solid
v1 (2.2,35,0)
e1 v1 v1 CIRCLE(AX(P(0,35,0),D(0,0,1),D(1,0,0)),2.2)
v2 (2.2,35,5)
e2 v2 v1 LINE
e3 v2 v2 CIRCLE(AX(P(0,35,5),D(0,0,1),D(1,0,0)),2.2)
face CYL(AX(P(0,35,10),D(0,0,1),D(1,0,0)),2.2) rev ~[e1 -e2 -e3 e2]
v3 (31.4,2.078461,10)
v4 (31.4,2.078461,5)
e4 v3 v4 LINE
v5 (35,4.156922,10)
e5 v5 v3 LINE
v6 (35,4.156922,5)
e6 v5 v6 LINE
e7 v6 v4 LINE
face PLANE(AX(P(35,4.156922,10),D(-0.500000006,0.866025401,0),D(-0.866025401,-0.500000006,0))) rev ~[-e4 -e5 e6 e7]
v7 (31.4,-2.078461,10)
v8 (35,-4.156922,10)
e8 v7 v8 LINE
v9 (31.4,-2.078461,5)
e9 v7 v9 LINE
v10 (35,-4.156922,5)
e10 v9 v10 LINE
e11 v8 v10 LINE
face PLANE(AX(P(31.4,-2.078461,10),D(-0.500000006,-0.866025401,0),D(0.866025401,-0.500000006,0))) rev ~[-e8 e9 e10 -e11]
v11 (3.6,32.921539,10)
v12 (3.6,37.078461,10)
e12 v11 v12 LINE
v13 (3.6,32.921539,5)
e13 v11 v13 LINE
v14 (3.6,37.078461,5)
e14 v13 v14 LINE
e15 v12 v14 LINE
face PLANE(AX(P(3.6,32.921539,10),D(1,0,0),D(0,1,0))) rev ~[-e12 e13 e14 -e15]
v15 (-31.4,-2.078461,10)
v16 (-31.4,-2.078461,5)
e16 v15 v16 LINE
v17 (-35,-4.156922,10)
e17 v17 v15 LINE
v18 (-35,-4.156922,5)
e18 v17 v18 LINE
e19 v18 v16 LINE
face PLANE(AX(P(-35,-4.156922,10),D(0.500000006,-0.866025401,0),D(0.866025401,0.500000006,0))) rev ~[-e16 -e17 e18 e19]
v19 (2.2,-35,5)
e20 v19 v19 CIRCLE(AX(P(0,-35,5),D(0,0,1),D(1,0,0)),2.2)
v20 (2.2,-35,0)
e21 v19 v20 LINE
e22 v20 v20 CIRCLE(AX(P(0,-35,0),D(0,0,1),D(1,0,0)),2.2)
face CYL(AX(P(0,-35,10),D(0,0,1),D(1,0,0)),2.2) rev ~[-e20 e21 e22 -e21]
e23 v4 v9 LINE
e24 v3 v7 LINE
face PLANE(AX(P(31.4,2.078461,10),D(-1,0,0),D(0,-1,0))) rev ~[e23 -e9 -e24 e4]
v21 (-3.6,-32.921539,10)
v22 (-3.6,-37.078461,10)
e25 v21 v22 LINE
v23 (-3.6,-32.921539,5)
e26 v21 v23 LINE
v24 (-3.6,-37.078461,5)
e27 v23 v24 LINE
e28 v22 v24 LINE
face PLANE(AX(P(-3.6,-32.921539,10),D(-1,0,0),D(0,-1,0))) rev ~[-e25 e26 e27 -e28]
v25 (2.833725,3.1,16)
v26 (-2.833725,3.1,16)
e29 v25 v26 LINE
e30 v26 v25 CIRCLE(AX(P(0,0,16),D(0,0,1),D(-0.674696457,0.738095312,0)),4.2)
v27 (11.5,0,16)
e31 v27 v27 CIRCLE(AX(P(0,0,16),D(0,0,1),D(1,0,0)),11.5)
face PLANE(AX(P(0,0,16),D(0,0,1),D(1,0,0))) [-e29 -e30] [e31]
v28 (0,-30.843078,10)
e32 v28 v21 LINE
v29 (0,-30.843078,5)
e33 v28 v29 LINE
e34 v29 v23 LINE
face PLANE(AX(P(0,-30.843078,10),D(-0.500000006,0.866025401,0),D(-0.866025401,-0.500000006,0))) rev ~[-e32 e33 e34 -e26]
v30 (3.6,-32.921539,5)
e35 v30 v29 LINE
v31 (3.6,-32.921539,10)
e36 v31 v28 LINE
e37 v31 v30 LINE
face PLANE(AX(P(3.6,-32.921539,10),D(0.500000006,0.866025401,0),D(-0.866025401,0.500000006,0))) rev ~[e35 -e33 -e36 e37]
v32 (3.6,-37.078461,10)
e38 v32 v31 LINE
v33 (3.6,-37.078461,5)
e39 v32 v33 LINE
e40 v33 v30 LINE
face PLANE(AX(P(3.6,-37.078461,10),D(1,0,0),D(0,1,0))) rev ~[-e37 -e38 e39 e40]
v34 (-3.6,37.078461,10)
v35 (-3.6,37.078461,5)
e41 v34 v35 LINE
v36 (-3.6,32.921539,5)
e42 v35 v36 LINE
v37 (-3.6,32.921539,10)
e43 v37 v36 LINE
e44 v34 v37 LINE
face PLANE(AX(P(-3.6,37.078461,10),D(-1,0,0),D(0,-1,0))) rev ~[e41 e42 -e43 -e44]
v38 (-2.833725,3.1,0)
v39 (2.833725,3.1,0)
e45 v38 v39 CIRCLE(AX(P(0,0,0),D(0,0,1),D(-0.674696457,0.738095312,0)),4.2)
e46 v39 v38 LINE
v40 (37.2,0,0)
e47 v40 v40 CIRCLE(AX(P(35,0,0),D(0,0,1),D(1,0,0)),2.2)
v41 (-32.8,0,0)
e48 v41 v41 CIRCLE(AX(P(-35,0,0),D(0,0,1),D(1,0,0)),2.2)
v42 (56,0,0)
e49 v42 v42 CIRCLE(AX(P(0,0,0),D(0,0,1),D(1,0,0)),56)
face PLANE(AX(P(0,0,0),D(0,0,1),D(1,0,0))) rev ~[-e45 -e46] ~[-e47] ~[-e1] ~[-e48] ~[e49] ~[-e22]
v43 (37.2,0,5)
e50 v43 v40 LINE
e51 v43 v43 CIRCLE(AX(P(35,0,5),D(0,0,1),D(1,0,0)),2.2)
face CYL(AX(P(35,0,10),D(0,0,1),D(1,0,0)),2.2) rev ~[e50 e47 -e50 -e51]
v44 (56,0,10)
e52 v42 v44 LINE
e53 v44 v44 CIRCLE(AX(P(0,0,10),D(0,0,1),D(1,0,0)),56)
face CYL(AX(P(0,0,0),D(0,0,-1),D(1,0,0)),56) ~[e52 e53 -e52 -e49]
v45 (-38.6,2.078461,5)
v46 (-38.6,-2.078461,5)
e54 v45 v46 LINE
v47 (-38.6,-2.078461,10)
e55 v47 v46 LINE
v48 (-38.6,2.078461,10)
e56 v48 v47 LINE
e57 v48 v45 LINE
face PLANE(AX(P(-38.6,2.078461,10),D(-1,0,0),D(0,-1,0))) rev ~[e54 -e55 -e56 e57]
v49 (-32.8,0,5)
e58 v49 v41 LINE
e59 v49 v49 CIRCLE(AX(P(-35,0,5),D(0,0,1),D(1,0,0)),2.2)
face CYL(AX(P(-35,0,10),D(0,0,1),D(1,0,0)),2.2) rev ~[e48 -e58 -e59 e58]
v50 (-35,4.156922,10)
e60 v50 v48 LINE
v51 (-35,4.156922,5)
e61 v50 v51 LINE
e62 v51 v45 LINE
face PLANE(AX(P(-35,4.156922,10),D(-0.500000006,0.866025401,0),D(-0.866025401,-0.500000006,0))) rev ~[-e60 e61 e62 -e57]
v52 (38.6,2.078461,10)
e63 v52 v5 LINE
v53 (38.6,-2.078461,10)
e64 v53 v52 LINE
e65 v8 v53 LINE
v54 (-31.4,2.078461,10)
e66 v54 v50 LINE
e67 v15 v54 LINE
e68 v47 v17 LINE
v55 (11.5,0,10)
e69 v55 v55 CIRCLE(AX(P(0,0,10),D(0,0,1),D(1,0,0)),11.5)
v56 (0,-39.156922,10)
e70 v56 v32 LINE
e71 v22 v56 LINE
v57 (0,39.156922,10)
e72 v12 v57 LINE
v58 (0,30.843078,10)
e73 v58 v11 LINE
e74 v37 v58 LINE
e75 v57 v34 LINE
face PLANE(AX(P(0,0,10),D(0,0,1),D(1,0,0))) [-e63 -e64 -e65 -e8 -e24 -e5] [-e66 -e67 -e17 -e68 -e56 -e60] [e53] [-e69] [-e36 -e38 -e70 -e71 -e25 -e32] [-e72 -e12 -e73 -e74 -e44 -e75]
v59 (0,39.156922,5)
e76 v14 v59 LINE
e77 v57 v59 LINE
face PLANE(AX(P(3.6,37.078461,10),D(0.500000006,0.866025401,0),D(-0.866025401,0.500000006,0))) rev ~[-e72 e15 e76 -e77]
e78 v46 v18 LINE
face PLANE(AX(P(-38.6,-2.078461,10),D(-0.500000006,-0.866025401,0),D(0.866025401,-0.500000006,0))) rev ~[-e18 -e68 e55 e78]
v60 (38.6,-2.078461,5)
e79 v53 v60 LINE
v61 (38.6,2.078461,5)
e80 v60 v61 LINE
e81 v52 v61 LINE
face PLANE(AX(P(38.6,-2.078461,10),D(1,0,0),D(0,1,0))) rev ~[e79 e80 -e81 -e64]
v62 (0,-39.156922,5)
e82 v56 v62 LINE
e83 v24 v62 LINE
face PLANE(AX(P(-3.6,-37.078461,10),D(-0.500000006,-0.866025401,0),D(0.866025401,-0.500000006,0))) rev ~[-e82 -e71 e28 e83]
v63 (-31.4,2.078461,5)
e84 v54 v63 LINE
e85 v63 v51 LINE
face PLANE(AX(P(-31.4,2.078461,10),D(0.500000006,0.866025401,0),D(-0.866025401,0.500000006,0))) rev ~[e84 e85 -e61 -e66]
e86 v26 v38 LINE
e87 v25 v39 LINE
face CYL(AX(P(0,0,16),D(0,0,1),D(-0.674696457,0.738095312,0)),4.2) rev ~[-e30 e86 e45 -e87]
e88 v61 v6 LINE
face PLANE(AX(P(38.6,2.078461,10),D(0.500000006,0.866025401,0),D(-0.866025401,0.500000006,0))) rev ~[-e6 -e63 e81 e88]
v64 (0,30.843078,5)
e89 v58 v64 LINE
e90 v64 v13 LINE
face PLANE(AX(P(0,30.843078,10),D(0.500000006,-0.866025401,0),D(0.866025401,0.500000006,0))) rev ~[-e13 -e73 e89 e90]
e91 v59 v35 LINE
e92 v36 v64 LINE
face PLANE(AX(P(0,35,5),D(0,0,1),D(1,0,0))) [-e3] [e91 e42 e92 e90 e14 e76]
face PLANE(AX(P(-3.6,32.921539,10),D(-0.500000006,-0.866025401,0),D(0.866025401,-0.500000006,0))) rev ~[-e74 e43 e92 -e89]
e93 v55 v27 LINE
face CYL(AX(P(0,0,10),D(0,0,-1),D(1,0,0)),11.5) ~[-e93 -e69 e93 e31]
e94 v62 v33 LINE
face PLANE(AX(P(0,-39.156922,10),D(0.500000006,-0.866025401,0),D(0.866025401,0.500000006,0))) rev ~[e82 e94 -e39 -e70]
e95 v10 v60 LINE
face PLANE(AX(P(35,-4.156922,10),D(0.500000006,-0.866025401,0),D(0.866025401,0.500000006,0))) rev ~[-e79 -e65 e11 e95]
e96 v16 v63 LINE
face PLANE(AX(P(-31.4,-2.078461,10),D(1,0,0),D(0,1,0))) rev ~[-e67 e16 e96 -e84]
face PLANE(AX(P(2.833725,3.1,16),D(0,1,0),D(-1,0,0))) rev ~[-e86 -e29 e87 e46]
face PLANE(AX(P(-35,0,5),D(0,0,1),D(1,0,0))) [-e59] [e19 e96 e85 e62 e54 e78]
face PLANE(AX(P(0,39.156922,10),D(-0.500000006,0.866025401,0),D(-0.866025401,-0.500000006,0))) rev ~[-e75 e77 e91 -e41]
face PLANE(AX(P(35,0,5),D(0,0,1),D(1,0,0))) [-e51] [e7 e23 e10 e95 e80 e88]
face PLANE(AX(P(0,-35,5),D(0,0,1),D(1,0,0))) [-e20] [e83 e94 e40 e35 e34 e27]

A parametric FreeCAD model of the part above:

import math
import FreeCAD as App
import Part
import Sketcher
from FreeCAD import Vector
Q = App.Units.Quantity

doc = App.newDocument("Part")
params = doc.addObject("Spreadsheet::Sheet", "Params")
for row, (alias, value) in enumerate([
    ("sketch1_diameter", "112 mm"),
    ("pad1_length", "10 mm"),
    ("sketch2_diameter", "23 mm"),
    ("pad2_length", "6 mm"),
    ("sketch3_radius", "4.2 mm"),
    ("pocket1_length", "16 mm"),
    ("sketch4_diameter", "4.4 mm"),
    ("pocket2_length", "10 mm"),
    ("pocket3_length", "5 mm"),
], start=1):
    params.set(f"A{row}", alias)
    params.set(f"B{row}", "=" + value)
    params.setAlias(f"B{row}", alias)

body = doc.addObject("PartDesign::Body", "Body")

# Sketch on XY plane
sketch1 = body.newObject("Sketcher::SketchObject", "Sketch")
sketch1.AttachmentSupport = (doc.getObject("XY_Plane"), [""])
sketch1.MapMode = "FlatFace"
sketch1.addGeometry(Part.Circle(Vector(0, 0, 0), Vector(0, 0, 1), 56), False)
sketch1.addConstraint([
    Sketcher.Constraint("Coincident", 0, 3, -1, 1),
    Sketcher.Constraint("Diameter", 0, Q("112 mm")),
])
sketch1.setExpression("Constraints[1]", "Params.sketch1_diameter")
pad1 = body.newObject("PartDesign::Pad", "Pad")
pad1.Profile = sketch1
pad1.setExpression("Length", "Params.pad1_length")

# Sketch on XY plane
sketch2 = body.newObject("Sketcher::SketchObject", "Sketch001")
sketch2.AttachmentSupport = (doc.getObject("XY_Plane"), [""])
sketch2.MapMode = "FlatFace"
sketch2.AttachmentOffset = App.Placement(Vector(0, 0, 10), App.Rotation())
sketch2.addGeometry(Part.Circle(Vector(0, 0, 0), Vector(0, 0, 1), 12), False)
sketch2.addConstraint([
    Sketcher.Constraint("Coincident", 0, 3, -1, 1),
    Sketcher.Constraint("Diameter", 0, Q("23 mm")),
])
sketch2.setExpression("Constraints[1]", "Params.sketch2_diameter")
pad2 = body.newObject("PartDesign::Pad", "Pad001")
pad2.Profile = sketch2
pad2.setExpression("Length", "Params.pad2_length")

# Sketch on XY plane
sketch3 = body.newObject("Sketcher::SketchObject", "Sketch002")
sketch3.AttachmentSupport = (doc.getObject("XY_Plane"), [""])
sketch3.MapMode = "FlatFace"
sketch3.AttachmentOffset = App.Placement(Vector(0, 0, 16), App.Rotation())
sketch3.addGeometry([
    Part.LineSegment(Vector(2.8, 3.1, 0), Vector(-2.8, 3.1, 0)),
    Part.ArcOfCircle(Part.Circle(Vector(0, 0, 0), Vector(0, 0, 1), 4.2), math.radians(132), math.radians(408)),
], False)
sketch3.addConstraint([
    Sketcher.Constraint("Coincident", 0, 1, 1, 2),
    Sketcher.Constraint("Coincident", 1, 1, 0, 2),
    Sketcher.Constraint("Horizontal", 0),
    Sketcher.Constraint("Coincident", 1, 3, -1, 1),
    Sketcher.Constraint("Radius", 1, Q("4.2 mm")),
    Sketcher.Constraint("DistanceY", -1, 1, 0, 1, Q("3.1 mm")),
])
sketch3.setExpression("Constraints[4]", "Params.sketch3_radius")
pocket1 = body.newObject("PartDesign::Pocket", "Pocket")
pocket1.Profile = sketch3
pocket1.setExpression("Length", "Params.pocket1_length")

# Sketch on XY plane
sketch4 = body.newObject("Sketcher::SketchObject", "Sketch003")
sketch4.AttachmentSupport = (doc.getObject("XY_Plane"), [""])
sketch4.MapMode = "FlatFace"
sketch4.AttachmentOffset = App.Placement(Vector(0, 0, 10), App.Rotation())
sketch4.addGeometry([
    Part.Circle(Vector(0, 35, 0), Vector(0, 0, 1), 2.2),
    Part.Circle(Vector(35, 0, 0), Vector(0, 0, 1), 2.2),
    Part.Circle(Vector(-35, 0, 0), Vector(0, 0, 1), 2.2),
    Part.Circle(Vector(0, -35, 0), Vector(0, 0, 1), 2.2),
], False)
sketch4.addConstraint([
    Sketcher.Constraint("Equal", 0, 1),
    Sketcher.Constraint("Equal", 1, 2),
    Sketcher.Constraint("Equal", 2, 3),
    Sketcher.Constraint("Symmetric", 1, 3, 2, 3, -1, 1),
    Sketcher.Constraint("Symmetric", 0, 3, 3, 3, -1, 1),
    Sketcher.Constraint("PointOnObject", 0, 3, -2),
    Sketcher.Constraint("PointOnObject", 1, 3, -1),
    Sketcher.Constraint("Diameter", 0, Q("4.4 mm")),
    Sketcher.Constraint("DistanceY", -1, 1, 0, 3, Q("35 mm")),
    Sketcher.Constraint("DistanceX", -1, 1, 1, 3, Q("35 mm")),
])
sketch4.setExpression("Constraints[7]", "Params.sketch4_diameter")
pocket2 = body.newObject("PartDesign::Pocket", "Pocket001")
pocket2.Profile = sketch4
pocket2.setExpression("Length", "Params.pocket2_length")

# Sketch on XY plane
sketch5 = body.newObject("Sketcher::SketchObject", "Sketch004")
sketch5.AttachmentSupport = (doc.getObject("XY_Plane"), [""])
sketch5.MapMode = "FlatFace"
sketch5.AttachmentOffset = App.Placement(Vector(0, 0, 10), App.Rotation())
sketch5.addGeometry([
    Part.LineSegment(Vector(3.6, 32.9, 0), Vector(3.6, 37.1, 0)),  # 0
    Part.LineSegment(Vector(3.6, 37.1, 0), Vector(0, 39.2, 0)),  # 1
    Part.LineSegment(Vector(0, 39.2, 0), Vector(-3.6, 37.1, 0)),  # 2
    Part.LineSegment(Vector(-3.6, 37.1, 0), Vector(-3.6, 32.9, 0)),  # 3
    Part.LineSegment(Vector(-3.6, 32.9, 0), Vector(0, 30.8, 0)),  # 4
    Part.LineSegment(Vector(0, 30.8, 0), Vector(3.6, 32.9, 0)),  # 5
    Part.LineSegment(Vector(38.6, -2.1, 0), Vector(38.6, 2.1, 0)),  # 6
    Part.LineSegment(Vector(38.6, 2.1, 0), Vector(35, 4.2, 0)),  # 7
    Part.LineSegment(Vector(35, 4.2, 0), Vector(31.4, 2.1, 0)),  # 8
    Part.LineSegment(Vector(31.4, 2.1, 0), Vector(31.4, -2.1, 0)),  # 9
    Part.LineSegment(Vector(31.4, -2.1, 0), Vector(35, -4.2, 0)),  # 10
    Part.LineSegment(Vector(35, -4.2, 0), Vector(38.6, -2.1, 0)),  # 11
    Part.LineSegment(Vector(3.6, -37.1, 0), Vector(3.6, -32.9, 0)),  # 12
    Part.LineSegment(Vector(3.6, -32.9, 0), Vector(0, -30.8, 0)),  # 13
    Part.LineSegment(Vector(0, -30.8, 0), Vector(-3.6, -32.9, 0)),  # 14
    Part.LineSegment(Vector(-3.6, -32.9, 0), Vector(-3.6, -37.1, 0)),  # 15
    Part.LineSegment(Vector(-3.6, -37.1, 0), Vector(0, -39.2, 0)),  # 16
    Part.LineSegment(Vector(0, -39.2, 0), Vector(3.6, -37.1, 0)),  # 17
    Part.LineSegment(Vector(-31.4, -2.1, 0), Vector(-31.4, 2.1, 0)),  # 18
    Part.LineSegment(Vector(-31.4, 2.1, 0), Vector(-35, 4.2, 0)),  # 19
    Part.LineSegment(Vector(-35, 4.2, 0), Vector(-38.6, 2.1, 0)),  # 20
    Part.LineSegment(Vector(-38.6, 2.1, 0), Vector(-38.6, -2.1, 0)),  # 21
    Part.LineSegment(Vector(-38.6, -2.1, 0), Vector(-35, -4.2, 0)),  # 22
    Part.LineSegment(Vector(-35, -4.2, 0), Vector(-31.4, -2.1, 0)),  # 23
], False)
sketch5.addConstraint([
    Sketcher.Constraint("Coincident", 0, 2, 1, 1),
    Sketcher.Constraint("Coincident", 1, 2, 2, 1),
    Sketcher.Constraint("Coincident", 2, 2, 3, 1),
    Sketcher.Constraint("Coincident", 3, 2, 4, 1),
    Sketcher.Constraint("Coincident", 4, 2, 5, 1),
    Sketcher.Constraint("Coincident", 5, 2, 0, 1),
    Sketcher.Constraint("Coincident", 6, 2, 7, 1),
    Sketcher.Constraint("Coincident", 7, 2, 8, 1),
    Sketcher.Constraint("Coincident", 8, 2, 9, 1),
    Sketcher.Constraint("Coincident", 9, 2, 10, 1),
    Sketcher.Constraint("Coincident", 10, 2, 11, 1),
    Sketcher.Constraint("Coincident", 11, 2, 6, 1),
    Sketcher.Constraint("Coincident", 12, 2, 13, 1),
    Sketcher.Constraint("Coincident", 13, 2, 14, 1),
    Sketcher.Constraint("Coincident", 14, 2, 15, 1),
    Sketcher.Constraint("Coincident", 15, 2, 16, 1),
    Sketcher.Constraint("Coincident", 16, 2, 17, 1),
    Sketcher.Constraint("Coincident", 17, 2, 12, 1),
    Sketcher.Constraint("Coincident", 18, 2, 19, 1),
    Sketcher.Constraint("Coincident", 19, 2, 20, 1),
    Sketcher.Constraint("Coincident", 20, 2, 21, 1),
    Sketcher.Constraint("Coincident", 21, 2, 22, 1),
    Sketcher.Constraint("Coincident", 22, 2, 23, 1),
    Sketcher.Constraint("Coincident", 23, 2, 18, 1),
    Sketcher.Constraint("Vertical", 0),
    Sketcher.Constraint("Vertical", 3),
    Sketcher.Constraint("Vertical", 6),
    Sketcher.Constraint("Vertical", 9),
    Sketcher.Constraint("Vertical", 12),
    Sketcher.Constraint("Vertical", 15),
    Sketcher.Constraint("Vertical", 18),
    Sketcher.Constraint("Vertical", 21),
    Sketcher.Constraint("Symmetric", 3, 2, 12, 2, -1, 1),
    Sketcher.Constraint("Symmetric", 4, 2, 13, 2, -1, 1),
    Sketcher.Constraint("Symmetric", 5, 2, 14, 2, -1, 1),
    Sketcher.Constraint("Symmetric", 1, 2, 16, 2, -1, 1),
    Sketcher.Constraint("Symmetric", 9, 2, 18, 2, -1, 1),
    Sketcher.Constraint("Symmetric", 10, 2, 19, 2, -1, 1),
    Sketcher.Constraint("Symmetric", 11, 2, 20, 2, -1, 1),
    Sketcher.Constraint("Symmetric", 7, 2, 22, 2, -1, 1),
    Sketcher.Constraint("Symmetric", 0, 2, 2, 2, -2),
    Sketcher.Constraint("Symmetric", 7, 2, 19, 2, -2),
    Sketcher.Constraint("PointOnObject", 1, 2, -2),
    Sketcher.Constraint("PointOnObject", 4, 2, -2),
    Sketcher.Constraint("Parallel", 1, 4),
    Sketcher.Constraint("Parallel", 2, 5),
    Sketcher.Constraint("Parallel", 4, 7),
    Sketcher.Constraint("Parallel", 5, 8),
    Sketcher.Constraint("Parallel", 7, 10),
    Sketcher.Constraint("Parallel", 8, 11),
    Sketcher.Constraint("Parallel", 13, 16),
    Sketcher.Constraint("Parallel", 14, 17),
    Sketcher.Constraint("Parallel", 19, 22),
    Sketcher.Constraint("Parallel", 20, 23),
    Sketcher.Constraint("Horizontal", 6, 2, 8, 2),
    Sketcher.Constraint("Equal", 3, 6),
    Sketcher.Constraint("Equal", 5, 7),
    Sketcher.Constraint("Angle", 1, Q("150 deg")),
    Sketcher.Constraint("DistanceX", -1, 1, 7, 2, Q("35 mm")),
    Sketcher.Constraint("DistanceY", 6, 2, 0, 2, Q("35 mm")),
    Sketcher.Constraint("DistanceX", -1, 1, 0, 2, Q("3.6 mm")),
    Sketcher.Constraint("DistanceY", 0, 1, 0, 2, Q("4.156922 mm")),
])
pocket3 = body.newObject("PartDesign::Pocket", "Pocket002")
pocket3.Profile = sketch5
pocket3.setExpression("Length", "Params.pocket3_length")

doc.recompute()
